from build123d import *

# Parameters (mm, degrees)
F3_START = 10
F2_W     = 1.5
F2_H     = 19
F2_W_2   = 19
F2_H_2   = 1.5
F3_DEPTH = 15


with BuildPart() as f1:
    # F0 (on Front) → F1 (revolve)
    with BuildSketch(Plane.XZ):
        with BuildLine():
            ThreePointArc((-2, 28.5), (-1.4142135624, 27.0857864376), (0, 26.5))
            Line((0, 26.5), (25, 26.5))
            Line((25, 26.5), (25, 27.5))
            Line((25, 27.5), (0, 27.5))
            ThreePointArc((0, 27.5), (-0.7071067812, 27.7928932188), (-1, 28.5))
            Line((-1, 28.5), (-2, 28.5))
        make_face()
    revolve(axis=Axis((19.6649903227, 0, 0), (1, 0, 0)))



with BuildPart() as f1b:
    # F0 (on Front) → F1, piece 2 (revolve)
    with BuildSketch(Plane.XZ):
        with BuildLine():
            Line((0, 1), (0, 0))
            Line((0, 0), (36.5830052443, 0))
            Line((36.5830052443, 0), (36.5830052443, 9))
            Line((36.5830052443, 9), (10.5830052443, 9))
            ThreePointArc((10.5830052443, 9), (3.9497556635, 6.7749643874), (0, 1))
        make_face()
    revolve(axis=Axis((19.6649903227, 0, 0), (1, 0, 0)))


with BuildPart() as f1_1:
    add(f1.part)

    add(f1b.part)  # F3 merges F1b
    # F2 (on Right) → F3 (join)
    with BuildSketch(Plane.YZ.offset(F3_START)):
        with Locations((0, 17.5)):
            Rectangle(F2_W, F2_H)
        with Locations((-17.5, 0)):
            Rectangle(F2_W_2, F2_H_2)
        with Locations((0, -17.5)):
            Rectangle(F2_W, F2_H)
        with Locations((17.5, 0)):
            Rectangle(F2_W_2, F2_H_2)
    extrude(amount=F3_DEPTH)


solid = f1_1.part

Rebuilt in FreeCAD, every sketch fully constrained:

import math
import FreeCAD as App
import Part
import Sketcher
from FreeCAD import Vector


def add_polygon(sketch, points):
    """Adds a closed chain of lines whose ends are joined by coincident constraints."""
    first, n = sketch.GeometryCount, len(points)
    for a, b in zip(points, points[1:] + points[:1]):
        sketch.addGeometry(Part.LineSegment(App.Vector(*a, 0), App.Vector(*b, 0)), False)
    for i in range(n):
        sketch.addConstraint(Sketcher.Constraint("Coincident", first + i, 2, first + (i + 1) % n, 1))

doc = App.newDocument("Part")
body = doc.addObject("PartDesign::Body", "Body")

# Sketch on XZ plane
sketch1 = doc.addObject("Sketcher::SketchObject", "Sketch")
body.addObject(sketch1)
sketch1.AttachmentSupport = (doc.XZ_Plane, [""])
sketch1.MapMode = "FlatFace"
sketch1.addGeometry([
    Part.ArcOfCircle(Part.Circle(Vector(0, 28.5, 0), Vector(0, 0, 1), 2), math.radians(180), math.radians(270)),  # 0
    Part.LineSegment(Vector(0, 26.5, 0), Vector(25, 26.5, 0)),  # 1
    Part.LineSegment(Vector(25, 26.5, 0), Vector(25, 27.5, 0)),  # 2
    Part.LineSegment(Vector(25, 27.5, 0), Vector(0, 27.5, 0)),  # 3
    Part.ArcOfCircle(Part.Circle(Vector(0, 28.5, 0), Vector(0, 0, 1), 1), math.radians(180), math.radians(270)),  # 4
    Part.LineSegment(Vector(-1, 28.5, 0), Vector(-2, 28.5, 0)),  # 5
], False)
sketch1.addConstraint([
    Sketcher.Constraint("Tangent", 0, 2, 1, 1),
    Sketcher.Constraint("Coincident", 1, 2, 2, 1),
    Sketcher.Constraint("Coincident", 2, 2, 3, 1),
    Sketcher.Constraint("Tangent", 3, 2, 4, 2),
    Sketcher.Constraint("Coincident", 4, 1, 5, 1),
    Sketcher.Constraint("Coincident", 5, 2, 0, 1),
    Sketcher.Constraint("Horizontal", 1),
    Sketcher.Constraint("Vertical", 2),
    Sketcher.Constraint("Horizontal", 3),
    Sketcher.Constraint("Horizontal", 5),
    Sketcher.Constraint("Coincident", 4, 3, 0, 3),
    Sketcher.Constraint("PointOnObject", 0, 3, -2),
    Sketcher.Constraint("Horizontal", 0, 3, 4, 1),
    Sketcher.Constraint("Radius", 0, 2.0),
    Sketcher.Constraint("Radius", 4, 1.0),
    Sketcher.Constraint("DistanceX", 1, 1, 1, 2, 25.0),
    Sketcher.Constraint("DistanceY", -1, 1, 0, 3, 28.5),
])
revolution = doc.addObject("PartDesign::Revolution", "Revolution")
body.addObject(revolution)
revolution.Profile = sketch1
revolution.ReferenceAxis = (sketch1, ["H_Axis"])
revolution.Angle = 360
body2 = doc.addObject("PartDesign::Body", "Body001")

# Sketch on XZ plane
sketch2 = doc.addObject("Sketcher::SketchObject", "Sketch001")
body2.addObject(sketch2)
sketch2.AttachmentSupport = (doc.getObject("XZ_Plane001"), [""])
sketch2.MapMode = "FlatFace"
sketch2.addGeometry([
    Part.LineSegment(Vector(0, 1, 0), Vector(0, 0, 0)),  # 0
    Part.LineSegment(Vector(0, 0, 0), Vector(36.6, 0, 0)),  # 1
    Part.LineSegment(Vector(36.6, 0, 0), Vector(36.6, 9, 0)),  # 2
    Part.LineSegment(Vector(36.6, 9, 0), Vector(10.6, 9, 0)),  # 3
    Part.ArcOfCircle(Part.Circle(Vector(10.6, -2, 0), Vector(0, 0, 1), 11), math.radians(90), math.radians(164)),  # 4
], False)
sketch2.addConstraint([
    Sketcher.Constraint("Coincident", 0, 2, 1, 1),
    Sketcher.Constraint("Coincident", 1, 2, 2, 1),
    Sketcher.Constraint("Coincident", 2, 2, 3, 1),
    Sketcher.Constraint("Tangent", 3, 2, 4, 1),
    Sketcher.Constraint("Coincident", 4, 2, 0, 1),
    Sketcher.Constraint("Vertical", 0),
    Sketcher.Constraint("Horizontal", 1),
    Sketcher.Constraint("Vertical", 2),
    Sketcher.Constraint("Horizontal", 3),
    Sketcher.Constraint("Coincident", 0, 2, -1, 1),
    Sketcher.Constraint("Radius", 4, 11.0),
    Sketcher.Constraint("DistanceX", 3, 2, 3, 1, 26.0),
    Sketcher.Constraint("DistanceY", 0, 2, 0, 1, 1.0),
    Sketcher.Constraint("DistanceY", 2, 1, 2, 2, 9.0),
])
revolution2 = doc.addObject("PartDesign::Revolution", "Revolution001")
body2.addObject(revolution2)
revolution2.Profile = sketch2
revolution2.ReferenceAxis = (sketch2, ["H_Axis"])
revolution2.Angle = 360
body.AllowCompound = True
doc.recompute()

boolean = doc.addObject("PartDesign::Boolean", "Boolean")
body.addObject(boolean)
boolean.Type = "Fuse"
boolean.addObjects([body2])

# Sketch on YZ plane
sketch3 = doc.addObject("Sketcher::SketchObject", "Sketch002")
body.addObject(sketch3)
sketch3.AttachmentSupport = (doc.YZ_Plane, [""])
sketch3.MapMode = "FlatFace"
sketch3.AttachmentOffset = App.Placement(Vector(0, 0, 10), App.Rotation())
add_polygon(sketch3, [(-0.8, 27), (-0.8, 8), (0.8, 8), (0.8, 27)])  # lines 0-3
add_polygon(sketch3, [(-27, 0.8), (-27, -0.8), (-8, -0.8), (-8, 0.8)])  # lines 4-7
add_polygon(sketch3, [(-0.8, -8), (-0.8, -27), (0.8, -27), (0.8, -8)])  # lines 8-11
add_polygon(sketch3, [(8, 0.8), (8, -0.8), (27, -0.8), (27, 0.8)])  # lines 12-15
sketch3.addConstraint([
    Sketcher.Constraint("Vertical", 0),
    Sketcher.Constraint("Horizontal", 1),
    Sketcher.Constraint("Vertical", 2),
    Sketcher.Constraint("Horizontal", 3),
    Sketcher.Constraint("Vertical", 4),
    Sketcher.Constraint("Horizontal", 5),
    Sketcher.Constraint("Vertical", 6),
    Sketcher.Constraint("Horizontal", 7),
    Sketcher.Constraint("Vertical", 8),
    Sketcher.Constraint("Horizontal", 9),
    Sketcher.Constraint("Vertical", 10),
    Sketcher.Constraint("Horizontal", 11),
    Sketcher.Constraint("Vertical", 12),
    Sketcher.Constraint("Horizontal", 13),
    Sketcher.Constraint("Vertical", 14),
    Sketcher.Constraint("Horizontal", 15),
    Sketcher.Constraint("Symmetric", 2, 2, 8, 2, -1, 1),
    Sketcher.Constraint("Symmetric", 0, 2, 10, 2, -1, 1),
    Sketcher.Constraint("Symmetric", 6, 2, 12, 2, -1, 1),
    Sketcher.Constraint("Symmetric", 4, 2, 14, 2, -1, 1),
    Sketcher.Constraint("Horizontal", 5, 2, 12, 2),
    Sketcher.Constraint("Vertical", 3, 2, 8, 2),
    Sketcher.Constraint("Equal", 15, 0),
    Sketcher.Constraint("Equal", 11, 4),
    Sketcher.Constraint("DistanceX", 5, 1, 5, 2, 19.0),
    Sketcher.Constraint("DistanceX", 1, 1, 1, 2, 1.5),
    Sketcher.Constraint("DistanceY", -1, 1, 0, 2, 8.0),
    Sketcher.Constraint("DistanceX", 4, 2, -1, 1, 27.0),
])
pad1 = doc.addObject("PartDesign::Pad", "Pad")
body.addObject(pad1)
pad1.Profile = sketch3
pad1.Length = 15

doc.recompute()
